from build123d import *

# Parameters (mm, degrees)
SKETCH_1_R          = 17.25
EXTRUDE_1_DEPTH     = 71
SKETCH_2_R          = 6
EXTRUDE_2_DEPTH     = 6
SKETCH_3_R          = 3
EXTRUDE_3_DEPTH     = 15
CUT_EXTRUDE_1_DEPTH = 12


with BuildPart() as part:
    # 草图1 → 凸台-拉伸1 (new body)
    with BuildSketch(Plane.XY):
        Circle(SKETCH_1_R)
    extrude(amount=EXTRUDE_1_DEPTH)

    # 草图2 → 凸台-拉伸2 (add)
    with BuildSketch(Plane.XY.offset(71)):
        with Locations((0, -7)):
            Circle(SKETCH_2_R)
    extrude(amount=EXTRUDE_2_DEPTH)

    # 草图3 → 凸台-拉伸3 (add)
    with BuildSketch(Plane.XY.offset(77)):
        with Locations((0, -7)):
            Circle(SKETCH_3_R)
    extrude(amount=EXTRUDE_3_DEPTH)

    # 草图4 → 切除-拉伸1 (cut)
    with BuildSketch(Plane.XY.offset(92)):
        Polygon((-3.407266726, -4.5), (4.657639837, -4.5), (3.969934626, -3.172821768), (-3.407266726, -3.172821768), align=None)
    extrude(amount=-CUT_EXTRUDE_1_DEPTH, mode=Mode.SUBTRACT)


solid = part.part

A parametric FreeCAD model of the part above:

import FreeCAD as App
import Part
import Sketcher
from FreeCAD import Vector
Q = App.Units.Quantity

doc = App.newDocument("Part")
params = doc.addObject("Spreadsheet::Sheet", "Params")
for row, (alias, value) in enumerate([
    ("sketch1_diameter", "34.5 mm"),
    ("pad1_length", "71 mm"),
    ("sketch2_diameter", "12 mm"),
    ("pad2_length", "6 mm"),
    ("sketch3_diameter", "6 mm"),
    ("pad3_length", "15 mm"),
    ("pocket1_length", "12 mm"),
], start=1):
    params.set(f"A{row}", alias)
    params.set(f"B{row}", "=" + value)
    params.setAlias(f"B{row}", alias)

body = doc.addObject("PartDesign::Body", "Body")

# Sketch on XY plane
sketch1 = body.newObject("Sketcher::SketchObject", "Sketch")
sketch1.AttachmentSupport = (doc.getObject("XY_Plane"), [""])
sketch1.MapMode = "FlatFace"
sketch1.addGeometry(Part.Circle(Vector(0, 0, 0), Vector(0, 0, 1), 17), False)
sketch1.addConstraint([
    Sketcher.Constraint("Coincident", 0, 3, -1, 1),
    Sketcher.Constraint("Diameter", 0, Q("34.5 mm")),
])
sketch1.setExpression("Constraints[1]", "Params.sketch1_diameter")
pad1 = body.newObject("PartDesign::Pad", "Pad")
pad1.Profile = sketch1
pad1.setExpression("Length", "Params.pad1_length")

# Sketch on XY plane
sketch2 = body.newObject("Sketcher::SketchObject", "Sketch001")
sketch2.AttachmentSupport = (doc.getObject("XY_Plane"), [""])
sketch2.MapMode = "FlatFace"
sketch2.AttachmentOffset = App.Placement(Vector(0, 0, 71), App.Rotation())
sketch2.addGeometry(Part.Circle(Vector(0, -7, 0), Vector(0, 0, 1), 6), False)
sketch2.addConstraint([
    Sketcher.Constraint("PointOnObject", 0, 3, -2),
    Sketcher.Constraint("Diameter", 0, Q("12 mm")),
    Sketcher.Constraint("DistanceY", 0, 3, -1, 1, Q("7 mm")),
])
sketch2.setExpression("Constraints[1]", "Params.sketch2_diameter")
pad2 = body.newObject("PartDesign::Pad", "Pad001")
pad2.Profile = sketch2
pad2.setExpression("Length", "Params.pad2_length")

# Sketch on XY plane
sketch3 = body.newObject("Sketcher::SketchObject", "Sketch002")
sketch3.AttachmentSupport = (doc.getObject("XY_Plane"), [""])
sketch3.MapMode = "FlatFace"
sketch3.AttachmentOffset = App.Placement(Vector(0, 0, 77), App.Rotation())
sketch3.addGeometry(Part.Circle(Vector(0, -7, 0), Vector(0, 0, 1), 3), False)
sketch3.addConstraint([
    Sketcher.Constraint("PointOnObject", 0, 3, -2),
    Sketcher.Constraint("Diameter", 0, Q("6 mm")),
    Sketcher.Constraint("DistanceY", 0, 3, -1, 1, Q("7 mm")),
])
sketch3.setExpression("Constraints[1]", "Params.sketch3_diameter")
pad3 = body.newObject("PartDesign::Pad", "Pad002")
pad3.Profile = sketch3
pad3.setExpression("Length", "Params.pad3_length")

# Sketch on XY plane
sketch4 = body.newObject("Sketcher::SketchObject", "Sketch003")
sketch4.AttachmentSupport = (doc.getObject("XY_Plane"), [""])
sketch4.MapMode = "FlatFace"
sketch4.AttachmentOffset = App.Placement(Vector(0, 0, 92), App.Rotation())
sketch4.addGeometry([
    Part.LineSegment(Vector(-3.4, -4.5, 0), Vector(4.7, -4.5, 0)),
    Part.LineSegment(Vector(4.7, -4.5, 0), Vector(4, -3.2, 0)),
    Part.LineSegment(Vector(4, -3.2, 0), Vector(-3.4, -3.2, 0)),
    Part.LineSegment(Vector(-3.4, -3.2, 0), Vector(-3.4, -4.5, 0)),
], False)
sketch4.addConstraint([
    Sketcher.Constraint("Coincident", 0, 2, 1, 1),
    Sketcher.Constraint("Coincident", 1, 2, 2, 1),
    Sketcher.Constraint("Coincident", 2, 2, 3, 1),
    Sketcher.Constraint("Coincident", 3, 2, 0, 1),
    Sketcher.Constraint("Horizontal", 0),
    Sketcher.Constraint("Horizontal", 2),
    Sketcher.Constraint("Vertical", 3),
    Sketcher.Constraint("DistanceY", 0, 2, -1, 1, Q("4.5 mm")),
    Sketcher.Constraint("DistanceX", 2, 2, 2, 1, Q("7.377201 mm")),
    Sketcher.Constraint("DistanceY", 3, 2, 3, 1, Q("1.327178 mm")),
    Sketcher.Constraint("Distance", 1, Q("1.494771 mm")),
    Sketcher.Constraint("DistanceX", -1, 1, 0, 2, Q("4.65764 mm")),
])
pocket1 = body.newObject("PartDesign::Pocket", "Pocket")
pocket1.Profile = sketch4
pocket1.setExpression("Length", "Params.pocket1_length")

doc.recompute()
